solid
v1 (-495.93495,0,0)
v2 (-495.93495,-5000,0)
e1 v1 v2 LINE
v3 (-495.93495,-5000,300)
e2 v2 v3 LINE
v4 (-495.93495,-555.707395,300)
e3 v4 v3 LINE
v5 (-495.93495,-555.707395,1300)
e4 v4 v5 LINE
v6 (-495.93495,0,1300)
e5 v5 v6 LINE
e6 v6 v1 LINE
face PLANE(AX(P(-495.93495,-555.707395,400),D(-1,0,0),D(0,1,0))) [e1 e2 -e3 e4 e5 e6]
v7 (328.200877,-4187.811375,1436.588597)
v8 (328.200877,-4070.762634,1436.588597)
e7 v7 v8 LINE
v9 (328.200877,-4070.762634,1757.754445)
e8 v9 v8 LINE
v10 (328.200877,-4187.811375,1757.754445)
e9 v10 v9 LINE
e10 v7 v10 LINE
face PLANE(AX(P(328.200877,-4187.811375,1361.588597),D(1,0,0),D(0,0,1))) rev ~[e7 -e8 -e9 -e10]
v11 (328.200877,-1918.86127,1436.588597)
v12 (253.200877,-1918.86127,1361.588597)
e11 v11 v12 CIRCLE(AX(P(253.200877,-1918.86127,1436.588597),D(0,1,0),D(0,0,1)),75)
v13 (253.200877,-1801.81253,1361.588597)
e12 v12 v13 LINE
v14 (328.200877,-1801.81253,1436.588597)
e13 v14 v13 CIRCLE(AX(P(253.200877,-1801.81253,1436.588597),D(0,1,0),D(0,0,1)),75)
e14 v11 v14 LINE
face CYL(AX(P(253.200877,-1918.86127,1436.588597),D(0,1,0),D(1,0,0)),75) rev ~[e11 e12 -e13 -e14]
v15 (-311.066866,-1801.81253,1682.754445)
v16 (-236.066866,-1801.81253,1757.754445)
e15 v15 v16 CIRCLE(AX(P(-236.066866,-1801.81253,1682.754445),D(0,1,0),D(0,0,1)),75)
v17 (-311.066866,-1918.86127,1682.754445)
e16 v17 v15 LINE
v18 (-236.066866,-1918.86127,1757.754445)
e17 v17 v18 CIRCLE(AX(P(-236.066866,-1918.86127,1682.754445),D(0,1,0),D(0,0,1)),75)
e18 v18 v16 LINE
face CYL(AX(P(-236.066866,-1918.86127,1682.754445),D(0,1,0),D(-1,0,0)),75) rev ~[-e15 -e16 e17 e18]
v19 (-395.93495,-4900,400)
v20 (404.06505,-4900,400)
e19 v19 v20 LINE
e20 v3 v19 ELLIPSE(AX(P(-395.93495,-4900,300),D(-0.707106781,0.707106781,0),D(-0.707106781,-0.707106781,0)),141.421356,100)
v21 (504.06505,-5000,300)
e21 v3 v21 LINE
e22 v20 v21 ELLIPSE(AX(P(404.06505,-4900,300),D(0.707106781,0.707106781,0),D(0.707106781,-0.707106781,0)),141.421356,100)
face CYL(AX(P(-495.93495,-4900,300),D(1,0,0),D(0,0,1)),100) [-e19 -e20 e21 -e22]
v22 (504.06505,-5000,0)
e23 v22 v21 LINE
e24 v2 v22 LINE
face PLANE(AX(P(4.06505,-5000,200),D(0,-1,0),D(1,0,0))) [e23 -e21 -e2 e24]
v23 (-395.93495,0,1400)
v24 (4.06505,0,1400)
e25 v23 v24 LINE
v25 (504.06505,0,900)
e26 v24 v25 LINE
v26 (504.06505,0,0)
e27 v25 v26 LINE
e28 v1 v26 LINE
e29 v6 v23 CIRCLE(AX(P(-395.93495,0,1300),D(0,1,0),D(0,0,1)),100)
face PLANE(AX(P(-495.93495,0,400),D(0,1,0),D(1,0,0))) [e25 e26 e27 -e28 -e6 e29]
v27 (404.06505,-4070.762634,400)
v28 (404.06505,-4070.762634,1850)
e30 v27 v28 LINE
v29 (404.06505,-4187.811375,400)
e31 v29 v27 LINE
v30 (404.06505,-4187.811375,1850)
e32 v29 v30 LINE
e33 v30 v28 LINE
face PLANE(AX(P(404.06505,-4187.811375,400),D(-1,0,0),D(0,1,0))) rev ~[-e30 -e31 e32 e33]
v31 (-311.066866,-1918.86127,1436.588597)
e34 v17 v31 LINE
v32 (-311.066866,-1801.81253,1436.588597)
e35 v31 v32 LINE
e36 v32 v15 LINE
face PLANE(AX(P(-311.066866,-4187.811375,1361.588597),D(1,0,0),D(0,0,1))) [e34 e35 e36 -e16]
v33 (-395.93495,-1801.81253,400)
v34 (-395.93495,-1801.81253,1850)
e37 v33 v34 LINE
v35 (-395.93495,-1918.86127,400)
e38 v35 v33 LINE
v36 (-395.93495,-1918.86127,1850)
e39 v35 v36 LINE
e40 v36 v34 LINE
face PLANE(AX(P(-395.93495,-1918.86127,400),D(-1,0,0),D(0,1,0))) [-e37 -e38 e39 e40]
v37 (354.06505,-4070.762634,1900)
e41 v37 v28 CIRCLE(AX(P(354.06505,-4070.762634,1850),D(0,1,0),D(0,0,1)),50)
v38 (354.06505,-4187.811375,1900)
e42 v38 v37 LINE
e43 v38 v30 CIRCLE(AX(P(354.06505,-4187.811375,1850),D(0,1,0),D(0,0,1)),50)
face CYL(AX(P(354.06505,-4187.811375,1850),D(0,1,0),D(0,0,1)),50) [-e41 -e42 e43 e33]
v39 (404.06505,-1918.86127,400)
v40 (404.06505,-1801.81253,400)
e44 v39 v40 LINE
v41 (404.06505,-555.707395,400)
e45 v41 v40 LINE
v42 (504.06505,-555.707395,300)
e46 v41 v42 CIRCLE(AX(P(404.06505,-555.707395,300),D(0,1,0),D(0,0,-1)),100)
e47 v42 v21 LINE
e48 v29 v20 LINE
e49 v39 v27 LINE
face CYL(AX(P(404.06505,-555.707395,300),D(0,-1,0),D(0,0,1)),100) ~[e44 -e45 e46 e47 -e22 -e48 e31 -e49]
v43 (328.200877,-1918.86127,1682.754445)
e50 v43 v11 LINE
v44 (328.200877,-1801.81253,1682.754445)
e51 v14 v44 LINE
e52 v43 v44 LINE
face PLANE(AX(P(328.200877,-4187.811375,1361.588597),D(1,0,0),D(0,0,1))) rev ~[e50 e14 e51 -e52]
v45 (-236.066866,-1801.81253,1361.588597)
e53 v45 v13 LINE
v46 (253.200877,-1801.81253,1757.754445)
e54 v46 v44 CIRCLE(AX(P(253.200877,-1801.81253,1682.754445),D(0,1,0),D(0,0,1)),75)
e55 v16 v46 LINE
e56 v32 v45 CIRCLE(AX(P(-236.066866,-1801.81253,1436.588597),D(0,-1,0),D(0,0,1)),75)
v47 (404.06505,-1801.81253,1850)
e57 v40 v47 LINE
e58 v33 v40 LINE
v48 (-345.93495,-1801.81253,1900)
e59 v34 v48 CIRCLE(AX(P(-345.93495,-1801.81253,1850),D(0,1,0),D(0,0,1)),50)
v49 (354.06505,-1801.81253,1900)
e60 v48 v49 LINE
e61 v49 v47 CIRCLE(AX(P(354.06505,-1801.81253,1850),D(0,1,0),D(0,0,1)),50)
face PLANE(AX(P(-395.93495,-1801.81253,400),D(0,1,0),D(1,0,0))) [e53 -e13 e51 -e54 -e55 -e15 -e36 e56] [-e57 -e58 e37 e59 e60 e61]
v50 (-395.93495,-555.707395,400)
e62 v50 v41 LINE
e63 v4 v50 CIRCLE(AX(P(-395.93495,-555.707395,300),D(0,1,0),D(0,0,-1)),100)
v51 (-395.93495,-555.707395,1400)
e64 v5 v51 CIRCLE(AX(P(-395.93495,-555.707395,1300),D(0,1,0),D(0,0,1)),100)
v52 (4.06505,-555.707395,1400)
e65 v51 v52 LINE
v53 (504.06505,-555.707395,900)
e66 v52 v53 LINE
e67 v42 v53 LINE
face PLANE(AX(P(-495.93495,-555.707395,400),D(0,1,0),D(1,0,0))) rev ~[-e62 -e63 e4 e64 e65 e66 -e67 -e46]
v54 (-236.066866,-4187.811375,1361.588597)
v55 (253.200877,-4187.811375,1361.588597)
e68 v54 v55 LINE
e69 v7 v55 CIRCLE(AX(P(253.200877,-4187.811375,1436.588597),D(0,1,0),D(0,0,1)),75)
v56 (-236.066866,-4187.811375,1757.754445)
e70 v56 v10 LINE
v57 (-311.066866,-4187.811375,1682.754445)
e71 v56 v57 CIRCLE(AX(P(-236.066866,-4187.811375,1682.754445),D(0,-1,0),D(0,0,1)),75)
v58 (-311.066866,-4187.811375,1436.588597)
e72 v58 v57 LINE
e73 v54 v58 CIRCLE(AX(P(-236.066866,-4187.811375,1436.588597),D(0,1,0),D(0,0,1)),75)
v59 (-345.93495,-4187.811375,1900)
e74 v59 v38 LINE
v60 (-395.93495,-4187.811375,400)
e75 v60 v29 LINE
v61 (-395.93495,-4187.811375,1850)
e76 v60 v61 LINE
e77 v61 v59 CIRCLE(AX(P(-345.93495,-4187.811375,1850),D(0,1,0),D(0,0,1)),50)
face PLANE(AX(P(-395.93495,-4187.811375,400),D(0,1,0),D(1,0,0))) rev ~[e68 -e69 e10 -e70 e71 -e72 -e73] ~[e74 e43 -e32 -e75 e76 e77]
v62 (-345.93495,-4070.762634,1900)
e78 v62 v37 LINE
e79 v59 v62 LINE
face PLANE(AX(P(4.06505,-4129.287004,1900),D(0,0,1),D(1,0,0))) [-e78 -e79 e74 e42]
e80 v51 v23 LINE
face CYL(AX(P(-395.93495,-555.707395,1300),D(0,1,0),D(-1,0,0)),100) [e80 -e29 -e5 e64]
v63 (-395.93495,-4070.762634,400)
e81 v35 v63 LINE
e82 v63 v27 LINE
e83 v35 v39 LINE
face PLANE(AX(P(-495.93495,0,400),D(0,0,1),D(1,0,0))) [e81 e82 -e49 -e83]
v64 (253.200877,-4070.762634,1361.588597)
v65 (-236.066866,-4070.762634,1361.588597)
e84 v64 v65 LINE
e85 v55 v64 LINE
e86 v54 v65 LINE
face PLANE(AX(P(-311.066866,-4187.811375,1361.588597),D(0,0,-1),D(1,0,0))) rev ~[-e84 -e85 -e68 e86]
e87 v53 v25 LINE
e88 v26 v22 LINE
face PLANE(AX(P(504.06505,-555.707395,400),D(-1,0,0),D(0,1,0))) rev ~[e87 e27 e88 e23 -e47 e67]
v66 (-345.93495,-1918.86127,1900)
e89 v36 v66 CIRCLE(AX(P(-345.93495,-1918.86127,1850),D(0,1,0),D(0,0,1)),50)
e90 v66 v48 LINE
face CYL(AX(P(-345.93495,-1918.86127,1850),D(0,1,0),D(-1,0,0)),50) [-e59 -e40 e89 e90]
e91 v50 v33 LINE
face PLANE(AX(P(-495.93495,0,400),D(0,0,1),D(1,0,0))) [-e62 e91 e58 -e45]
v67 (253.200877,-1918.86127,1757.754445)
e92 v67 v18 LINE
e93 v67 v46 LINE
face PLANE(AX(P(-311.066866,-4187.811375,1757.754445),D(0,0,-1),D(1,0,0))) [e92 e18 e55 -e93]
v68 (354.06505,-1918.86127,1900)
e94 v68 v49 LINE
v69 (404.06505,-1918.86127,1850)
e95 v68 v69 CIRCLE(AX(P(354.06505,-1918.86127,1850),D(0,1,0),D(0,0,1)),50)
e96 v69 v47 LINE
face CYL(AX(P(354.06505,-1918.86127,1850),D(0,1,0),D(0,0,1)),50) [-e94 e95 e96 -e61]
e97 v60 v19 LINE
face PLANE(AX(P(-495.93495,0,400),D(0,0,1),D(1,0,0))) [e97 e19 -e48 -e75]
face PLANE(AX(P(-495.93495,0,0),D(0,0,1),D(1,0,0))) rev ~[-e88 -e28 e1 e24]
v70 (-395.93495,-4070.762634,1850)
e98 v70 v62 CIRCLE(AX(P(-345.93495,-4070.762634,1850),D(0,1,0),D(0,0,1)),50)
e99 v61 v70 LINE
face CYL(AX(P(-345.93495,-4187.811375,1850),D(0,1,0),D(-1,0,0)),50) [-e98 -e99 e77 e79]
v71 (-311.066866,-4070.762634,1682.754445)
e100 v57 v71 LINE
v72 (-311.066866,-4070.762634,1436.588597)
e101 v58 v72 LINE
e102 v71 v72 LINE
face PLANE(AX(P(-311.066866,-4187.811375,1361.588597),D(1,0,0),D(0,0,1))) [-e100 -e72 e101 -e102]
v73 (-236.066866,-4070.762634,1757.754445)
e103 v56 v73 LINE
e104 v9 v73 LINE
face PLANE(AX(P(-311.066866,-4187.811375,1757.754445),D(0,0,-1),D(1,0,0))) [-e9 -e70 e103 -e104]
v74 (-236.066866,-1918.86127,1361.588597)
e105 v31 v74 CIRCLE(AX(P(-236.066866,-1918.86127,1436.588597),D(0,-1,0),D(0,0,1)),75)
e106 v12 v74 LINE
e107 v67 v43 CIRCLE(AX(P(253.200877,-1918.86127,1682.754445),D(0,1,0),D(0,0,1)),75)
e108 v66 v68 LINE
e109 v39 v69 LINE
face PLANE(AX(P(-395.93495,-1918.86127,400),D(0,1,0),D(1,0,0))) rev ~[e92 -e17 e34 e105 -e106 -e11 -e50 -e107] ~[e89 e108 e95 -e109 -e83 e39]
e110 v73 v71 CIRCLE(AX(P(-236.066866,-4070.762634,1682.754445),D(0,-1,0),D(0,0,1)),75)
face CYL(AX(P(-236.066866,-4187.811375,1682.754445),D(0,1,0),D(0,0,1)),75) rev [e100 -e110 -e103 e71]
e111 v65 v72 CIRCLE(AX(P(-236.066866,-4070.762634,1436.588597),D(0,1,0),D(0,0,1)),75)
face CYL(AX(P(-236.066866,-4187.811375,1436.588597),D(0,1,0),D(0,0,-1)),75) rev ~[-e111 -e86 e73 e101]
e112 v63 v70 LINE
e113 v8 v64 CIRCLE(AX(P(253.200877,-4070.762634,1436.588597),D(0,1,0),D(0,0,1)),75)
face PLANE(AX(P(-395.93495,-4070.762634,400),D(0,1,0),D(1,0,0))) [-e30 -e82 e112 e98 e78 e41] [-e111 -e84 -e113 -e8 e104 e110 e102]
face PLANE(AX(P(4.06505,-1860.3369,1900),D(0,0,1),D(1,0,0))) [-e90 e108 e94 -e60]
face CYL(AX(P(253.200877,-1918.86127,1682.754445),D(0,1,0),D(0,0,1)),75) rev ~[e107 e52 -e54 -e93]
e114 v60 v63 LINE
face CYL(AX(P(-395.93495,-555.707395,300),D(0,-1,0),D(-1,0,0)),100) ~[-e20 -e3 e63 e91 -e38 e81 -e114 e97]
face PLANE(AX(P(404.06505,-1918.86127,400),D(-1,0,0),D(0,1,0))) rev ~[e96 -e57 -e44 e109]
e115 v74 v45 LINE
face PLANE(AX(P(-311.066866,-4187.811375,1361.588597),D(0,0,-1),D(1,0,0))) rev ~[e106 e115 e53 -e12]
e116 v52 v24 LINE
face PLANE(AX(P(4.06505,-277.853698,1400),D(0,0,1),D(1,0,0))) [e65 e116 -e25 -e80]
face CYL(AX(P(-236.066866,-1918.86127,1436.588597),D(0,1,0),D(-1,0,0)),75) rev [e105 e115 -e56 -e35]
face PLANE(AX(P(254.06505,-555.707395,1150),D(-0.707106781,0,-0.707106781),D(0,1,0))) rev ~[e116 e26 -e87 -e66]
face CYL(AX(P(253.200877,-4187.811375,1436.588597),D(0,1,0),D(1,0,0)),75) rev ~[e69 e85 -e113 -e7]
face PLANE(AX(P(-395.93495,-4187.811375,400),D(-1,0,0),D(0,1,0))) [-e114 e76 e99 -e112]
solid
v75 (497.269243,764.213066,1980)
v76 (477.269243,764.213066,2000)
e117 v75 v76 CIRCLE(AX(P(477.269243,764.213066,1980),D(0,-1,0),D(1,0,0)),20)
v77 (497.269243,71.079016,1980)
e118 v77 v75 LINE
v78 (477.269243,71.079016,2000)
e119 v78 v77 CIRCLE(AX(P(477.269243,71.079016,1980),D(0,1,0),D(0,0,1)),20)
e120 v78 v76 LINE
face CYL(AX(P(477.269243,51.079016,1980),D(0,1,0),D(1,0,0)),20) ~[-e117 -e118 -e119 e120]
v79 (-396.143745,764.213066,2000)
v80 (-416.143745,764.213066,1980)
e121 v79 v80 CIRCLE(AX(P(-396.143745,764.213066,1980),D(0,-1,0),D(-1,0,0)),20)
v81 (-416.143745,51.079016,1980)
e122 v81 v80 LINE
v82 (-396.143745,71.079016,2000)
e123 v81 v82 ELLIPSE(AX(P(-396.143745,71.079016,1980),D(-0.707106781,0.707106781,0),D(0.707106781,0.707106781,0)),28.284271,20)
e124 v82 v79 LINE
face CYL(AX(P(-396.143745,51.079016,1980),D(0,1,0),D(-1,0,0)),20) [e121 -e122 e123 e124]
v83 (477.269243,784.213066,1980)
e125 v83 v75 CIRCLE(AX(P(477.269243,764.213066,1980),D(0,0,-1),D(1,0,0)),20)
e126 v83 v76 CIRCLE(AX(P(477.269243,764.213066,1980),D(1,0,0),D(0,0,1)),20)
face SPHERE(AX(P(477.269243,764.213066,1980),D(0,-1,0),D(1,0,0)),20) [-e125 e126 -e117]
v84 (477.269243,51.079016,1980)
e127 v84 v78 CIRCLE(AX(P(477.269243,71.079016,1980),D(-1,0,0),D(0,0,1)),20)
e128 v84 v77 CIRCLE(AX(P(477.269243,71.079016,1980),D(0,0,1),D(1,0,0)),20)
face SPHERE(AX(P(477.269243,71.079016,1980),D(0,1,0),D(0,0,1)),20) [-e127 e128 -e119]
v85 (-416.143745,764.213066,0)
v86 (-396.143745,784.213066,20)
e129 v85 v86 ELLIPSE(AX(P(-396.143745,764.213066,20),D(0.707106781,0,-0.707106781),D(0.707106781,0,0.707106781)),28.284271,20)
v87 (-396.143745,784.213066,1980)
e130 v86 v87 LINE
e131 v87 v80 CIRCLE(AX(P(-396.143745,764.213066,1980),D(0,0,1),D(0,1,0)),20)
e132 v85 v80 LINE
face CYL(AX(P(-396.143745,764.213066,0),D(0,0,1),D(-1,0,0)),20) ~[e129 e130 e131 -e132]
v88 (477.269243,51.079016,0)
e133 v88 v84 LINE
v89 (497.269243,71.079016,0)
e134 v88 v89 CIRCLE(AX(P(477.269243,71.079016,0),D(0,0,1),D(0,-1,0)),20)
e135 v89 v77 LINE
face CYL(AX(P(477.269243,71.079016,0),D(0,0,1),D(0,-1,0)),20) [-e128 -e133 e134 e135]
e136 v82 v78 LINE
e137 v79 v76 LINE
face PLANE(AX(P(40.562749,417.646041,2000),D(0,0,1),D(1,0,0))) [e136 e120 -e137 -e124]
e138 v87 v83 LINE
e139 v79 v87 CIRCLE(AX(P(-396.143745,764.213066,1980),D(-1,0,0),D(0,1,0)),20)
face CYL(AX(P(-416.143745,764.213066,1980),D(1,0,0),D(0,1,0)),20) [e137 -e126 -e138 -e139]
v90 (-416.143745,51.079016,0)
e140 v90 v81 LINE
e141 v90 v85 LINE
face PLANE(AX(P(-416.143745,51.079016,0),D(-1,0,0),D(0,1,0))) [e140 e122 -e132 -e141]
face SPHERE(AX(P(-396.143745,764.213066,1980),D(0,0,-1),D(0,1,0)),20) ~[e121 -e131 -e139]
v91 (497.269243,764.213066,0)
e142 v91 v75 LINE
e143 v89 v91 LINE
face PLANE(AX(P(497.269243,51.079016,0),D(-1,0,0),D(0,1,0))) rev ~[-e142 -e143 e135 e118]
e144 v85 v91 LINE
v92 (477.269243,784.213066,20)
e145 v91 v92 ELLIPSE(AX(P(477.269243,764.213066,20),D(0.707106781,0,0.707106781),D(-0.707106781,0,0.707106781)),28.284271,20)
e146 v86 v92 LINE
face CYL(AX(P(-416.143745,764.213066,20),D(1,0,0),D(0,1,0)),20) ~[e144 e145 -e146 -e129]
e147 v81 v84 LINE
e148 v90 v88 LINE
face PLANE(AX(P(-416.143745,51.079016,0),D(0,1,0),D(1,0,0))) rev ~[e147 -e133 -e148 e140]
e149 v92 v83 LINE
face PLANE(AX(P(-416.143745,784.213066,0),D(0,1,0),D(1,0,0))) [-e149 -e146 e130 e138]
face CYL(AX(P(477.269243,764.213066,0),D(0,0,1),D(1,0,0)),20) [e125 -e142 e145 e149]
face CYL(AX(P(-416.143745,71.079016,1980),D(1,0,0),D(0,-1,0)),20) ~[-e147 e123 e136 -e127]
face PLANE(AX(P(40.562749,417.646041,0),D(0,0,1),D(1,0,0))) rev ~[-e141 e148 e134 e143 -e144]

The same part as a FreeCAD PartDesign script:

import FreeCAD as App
import Part
import Sketcher
Q = App.Units.Quantity


def edges_at(feature, points):
    """Names of the edges that pass closest to the given points."""
    edges = feature.Shape.Edges
    near = lambda p: min(range(len(edges)), key=lambda i: edges[i].distToShape(Part.Vertex(*p))[0])
    return sorted({f"Edge{near(p) + 1}" for p in points})


def add_polygon(sketch, points):
    """Adds a closed chain of lines whose ends are joined by coincident constraints."""
    first, n = sketch.GeometryCount, len(points)
    for a, b in zip(points, points[1:] + points[:1]):
        sketch.addGeometry(Part.LineSegment(App.Vector(*a, 0), App.Vector(*b, 0)), False)
    for i in range(n):
        sketch.addConstraint(Sketcher.Constraint("Coincident", first + i, 2, first + (i + 1) % n, 1))

doc = App.newDocument("Part")
body = doc.addObject("PartDesign::Body", "Body")

# Sketch on XZ plane
sketch1 = body.newObject("Sketcher::SketchObject", "Sketch")
sketch1.AttachmentSupport = (doc.getObject("XZ_Plane"), [""])
sketch1.MapMode = "FlatFace"
add_polygon(sketch1, [(-495.93495, 400), (-495.93495, 0), (504.06505, 0), (504.06505, 400)])  # lines 0-3
sketch1.addConstraint(Sketcher.Constraint("Vertical", 0))
sketch1.addConstraint(Sketcher.Constraint("Horizontal", 1))
sketch1.addConstraint(Sketcher.Constraint("Vertical", 2))
sketch1.addConstraint(Sketcher.Constraint("Horizontal", 3))
sketch1.addConstraint(Sketcher.Constraint("PointOnObject", 0, 2, -1))
sketch1.addConstraint(Sketcher.Constraint("DistanceX", 1, 1, 1, 2, Q("1000 mm")))
sketch1.addConstraint(Sketcher.Constraint("DistanceY", 0, 2, 0, 1, Q("400 mm")))
sketch1.addConstraint(Sketcher.Constraint("DistanceX", 0, 2, -1, 1, Q("495.93495 mm")))
pad1 = body.newObject("PartDesign::Pad", "Pad")
pad1.Profile = sketch1
pad1.Length = 5000

# Sketch on XY plane
sketch2 = body.newObject("Sketcher::SketchObject", "Sketch001")
sketch2.AttachmentSupport = (doc.getObject("XY_Plane"), [""])
sketch2.MapMode = "FlatFace"
sketch2.AttachmentOffset = App.Placement(App.Vector(0, 0, 400), App.Rotation())
add_polygon(sketch2, [(-495.93495, 0), (-495.93495, -555.707395), (504.06505, -555.707395), (504.06505, 0)])  # lines 0-3
sketch2.addConstraint(Sketcher.Constraint("Vertical", 0))
sketch2.addConstraint(Sketcher.Constraint("Horizontal", 1))
sketch2.addConstraint(Sketcher.Constraint("Vertical", 2))
sketch2.addConstraint(Sketcher.Constraint("Horizontal", 3))
sketch2.addConstraint(Sketcher.Constraint("PointOnObject", 2, 2, -1))
sketch2.addConstraint(Sketcher.Constraint("DistanceX", 1, 1, 1, 2, Q("1000 mm")))
sketch2.addConstraint(Sketcher.Constraint("DistanceY", 0, 2, 0, 1, Q("555.707395 mm")))
sketch2.addConstraint(Sketcher.Constraint("DistanceX", 0, 2, -1, 1, Q("495.93495 mm")))
pad2 = body.newObject("PartDesign::Pad", "Pad001")
pad2.Profile = sketch2
pad2.Length = 1000
doc.recompute()

fillet = body.newObject("PartDesign::Fillet", "Fillet")
fillet.Base = (pad2, edges_at(pad2, [
    (-495.935, -277.854, 1400),
    (-495.935, -2777.854, 400),
    (504.065, -2777.854, 400),
    (4.065, -5000, 400),
]))
fillet.Radius = 100

# Sketch on XY plane
sketch3 = body.newObject("Sketcher::SketchObject", "Sketch002")
sketch3.AttachmentSupport = (doc.getObject("XY_Plane"), [""])
sketch3.MapMode = "FlatFace"
sketch3.AttachmentOffset = App.Placement(App.Vector(0, 0, 400), App.Rotation())
add_polygon(sketch3, [(-395.93495, -4070.762634), (-395.93495, -4187.811375), (404.06505, -4187.811375), (404.06505, -4070.762634)])  # lines 0-3
add_polygon(sketch3, [(-395.93495, -1801.81253), (-395.93495, -1918.86127), (404.06505, -1918.86127), (404.06505, -1801.81253)])  # lines 4-7
sketch3.addConstraint(Sketcher.Constraint("Vertical", 0))
sketch3.addConstraint(Sketcher.Constraint("Horizontal", 1))
sketch3.addConstraint(Sketcher.Constraint("Vertical", 2))
sketch3.addConstraint(Sketcher.Constraint("Horizontal", 3))
sketch3.addConstraint(Sketcher.Constraint("Vertical", 4))
sketch3.addConstraint(Sketcher.Constraint("Horizontal", 5))
sketch3.addConstraint(Sketcher.Constraint("Vertical", 6))
sketch3.addConstraint(Sketcher.Constraint("Horizontal", 7))
sketch3.addConstraint(Sketcher.Constraint("Vertical", 3, 2, 4, 2))
sketch3.addConstraint(Sketcher.Constraint("Vertical", 2, 2, 5, 2))
sketch3.addConstraint(Sketcher.Constraint("Equal", 2, 4))
sketch3.addConstraint(Sketcher.Constraint("DistanceX", 1, 1, 1, 2, Q("800 mm")))
sketch3.addConstraint(Sketcher.Constraint("DistanceY", 0, 2, 0, 1, Q("117.04874 mm")))
sketch3.addConstraint(Sketcher.Constraint("DistanceX", 0, 2, -1, 1, Q("395.93495 mm")))
sketch3.addConstraint(Sketcher.Constraint("DistanceY", 4, 2, -1, 1, Q("1918.86127 mm")))
sketch3.addConstraint(Sketcher.Constraint("DistanceY", 0, 2, -1, 1, Q("4187.811375 mm")))
pad3 = body.newObject("PartDesign::Pad", "Pad002")
pad3.Profile = sketch3
pad3.Length = 1500
doc.recompute()

fillet2 = body.newObject("PartDesign::Fillet", "Fillet001")
fillet2.Base = (pad3, edges_at(pad3, [
    (404.065, -4129.287, 1900),
    (404.065, -1860.337, 1900),
    (-395.935, -1860.337, 1900),
    (-395.935, -4129.287, 1900),
]))
fillet2.Radius = 50
doc.recompute()

chamfer = body.newObject("PartDesign::Chamfer", "Chamfer")
chamfer.Base = (fillet2, edges_at(fillet2, [(504.065, -277.854, 1400)]))
chamfer.Size = 500

# Sketch on XZ plane
sketch4 = body.newObject("Sketcher::SketchObject", "Sketch003")
sketch4.AttachmentSupport = (doc.getObject("XZ_Plane"), [""])
sketch4.MapMode = "FlatFace"
sketch4.AttachmentOffset = App.Placement(App.Vector(0, 0, 4187.811375), App.Rotation())
add_polygon(sketch4, [(-311.066866, 1757.754445), (-311.066866, 1361.588597), (328.200877, 1361.588597), (328.200877, 1757.754445)])  # lines 0-3
sketch4.addConstraint(Sketcher.Constraint("Vertical", 0))
sketch4.addConstraint(Sketcher.Constraint("Horizontal", 1))
sketch4.addConstraint(Sketcher.Constraint("Vertical", 2))
sketch4.addConstraint(Sketcher.Constraint("Horizontal", 3))
sketch4.addConstraint(Sketcher.Constraint("DistanceX", 1, 1, 1, 2, Q("639.267743 mm")))
sketch4.addConstraint(Sketcher.Constraint("DistanceY", 0, 2, 0, 1, Q("396.165848 mm")))
sketch4.addConstraint(Sketcher.Constraint("DistanceX", 0, 2, -1, 1, Q("311.066866 mm")))
sketch4.addConstraint(Sketcher.Constraint("DistanceY", -1, 1, 0, 2, Q("1361.588597 mm")))
pocket1 = body.newObject("PartDesign::Pocket", "Pocket")
pocket1.Profile = sketch4
pocket1.Length = 2385.998845
doc.recompute()

fillet3 = body.newObject("PartDesign::Fillet", "Fillet002")
fillet3.Base = (pocket1, edges_at(pocket1, [
    (-311.067, -4129.287, 1757.754),
    (-311.067, -1860.337, 1757.754),
    (-311.067, -4129.287, 1361.589),
    (-311.067, -1860.337, 1361.589),
    (328.201, -1860.337, 1361.589),
    (328.201, -4129.287, 1361.589),
    (328.201, -1860.337, 1757.754),
]))
fillet3.Radius = 75
body2 = doc.addObject("PartDesign::Body", "Body001")

# Sketch on XY plane
sketch5 = body2.newObject("Sketcher::SketchObject", "Sketch004")
sketch5.AttachmentSupport = (doc.getObject("XY_Plane001"), [""])
sketch5.MapMode = "FlatFace"
add_polygon(sketch5, [(-416.143745, 784.213066), (-416.143745, 51.079016), (497.269243, 51.079016), (497.269243, 784.213066)])  # lines 0-3
sketch5.addConstraint(Sketcher.Constraint("Vertical", 0))
sketch5.addConstraint(Sketcher.Constraint("Horizontal", 1))
sketch5.addConstraint(Sketcher.Constraint("Vertical", 2))
sketch5.addConstraint(Sketcher.Constraint("Horizontal", 3))
sketch5.addConstraint(Sketcher.Constraint("DistanceX", 1, 1, 1, 2, Q("913.412988 mm")))
sketch5.addConstraint(Sketcher.Constraint("DistanceY", 0, 2, 0, 1, Q("733.13405 mm")))
sketch5.addConstraint(Sketcher.Constraint("DistanceX", 0, 2, -1, 1, Q("416.143745 mm")))
sketch5.addConstraint(Sketcher.Constraint("DistanceY", -1, 1, 0, 2, Q("51.079016 mm")))
pad4 = body2.newObject("PartDesign::Pad", "Pad003")
pad4.Profile = sketch5
pad4.Length = 2000
doc.recompute()

fillet4 = body2.newObject("PartDesign::Fillet", "Fillet003")
fillet4.Base = (pad4, edges_at(pad4, [
    (497.269, 417.646, 2000),
    (497.269, 784.213, 1000),
    (-416.144, 784.213, 1000),
    (40.563, 784.213, 0),
    (40.563, 784.213, 2000),
    (-416.144, 417.646, 2000),
    (40.563, 51.079, 2000),
    (497.269, 51.079, 1000),
]))
fillet4.Radius = 20

doc.recompute()
